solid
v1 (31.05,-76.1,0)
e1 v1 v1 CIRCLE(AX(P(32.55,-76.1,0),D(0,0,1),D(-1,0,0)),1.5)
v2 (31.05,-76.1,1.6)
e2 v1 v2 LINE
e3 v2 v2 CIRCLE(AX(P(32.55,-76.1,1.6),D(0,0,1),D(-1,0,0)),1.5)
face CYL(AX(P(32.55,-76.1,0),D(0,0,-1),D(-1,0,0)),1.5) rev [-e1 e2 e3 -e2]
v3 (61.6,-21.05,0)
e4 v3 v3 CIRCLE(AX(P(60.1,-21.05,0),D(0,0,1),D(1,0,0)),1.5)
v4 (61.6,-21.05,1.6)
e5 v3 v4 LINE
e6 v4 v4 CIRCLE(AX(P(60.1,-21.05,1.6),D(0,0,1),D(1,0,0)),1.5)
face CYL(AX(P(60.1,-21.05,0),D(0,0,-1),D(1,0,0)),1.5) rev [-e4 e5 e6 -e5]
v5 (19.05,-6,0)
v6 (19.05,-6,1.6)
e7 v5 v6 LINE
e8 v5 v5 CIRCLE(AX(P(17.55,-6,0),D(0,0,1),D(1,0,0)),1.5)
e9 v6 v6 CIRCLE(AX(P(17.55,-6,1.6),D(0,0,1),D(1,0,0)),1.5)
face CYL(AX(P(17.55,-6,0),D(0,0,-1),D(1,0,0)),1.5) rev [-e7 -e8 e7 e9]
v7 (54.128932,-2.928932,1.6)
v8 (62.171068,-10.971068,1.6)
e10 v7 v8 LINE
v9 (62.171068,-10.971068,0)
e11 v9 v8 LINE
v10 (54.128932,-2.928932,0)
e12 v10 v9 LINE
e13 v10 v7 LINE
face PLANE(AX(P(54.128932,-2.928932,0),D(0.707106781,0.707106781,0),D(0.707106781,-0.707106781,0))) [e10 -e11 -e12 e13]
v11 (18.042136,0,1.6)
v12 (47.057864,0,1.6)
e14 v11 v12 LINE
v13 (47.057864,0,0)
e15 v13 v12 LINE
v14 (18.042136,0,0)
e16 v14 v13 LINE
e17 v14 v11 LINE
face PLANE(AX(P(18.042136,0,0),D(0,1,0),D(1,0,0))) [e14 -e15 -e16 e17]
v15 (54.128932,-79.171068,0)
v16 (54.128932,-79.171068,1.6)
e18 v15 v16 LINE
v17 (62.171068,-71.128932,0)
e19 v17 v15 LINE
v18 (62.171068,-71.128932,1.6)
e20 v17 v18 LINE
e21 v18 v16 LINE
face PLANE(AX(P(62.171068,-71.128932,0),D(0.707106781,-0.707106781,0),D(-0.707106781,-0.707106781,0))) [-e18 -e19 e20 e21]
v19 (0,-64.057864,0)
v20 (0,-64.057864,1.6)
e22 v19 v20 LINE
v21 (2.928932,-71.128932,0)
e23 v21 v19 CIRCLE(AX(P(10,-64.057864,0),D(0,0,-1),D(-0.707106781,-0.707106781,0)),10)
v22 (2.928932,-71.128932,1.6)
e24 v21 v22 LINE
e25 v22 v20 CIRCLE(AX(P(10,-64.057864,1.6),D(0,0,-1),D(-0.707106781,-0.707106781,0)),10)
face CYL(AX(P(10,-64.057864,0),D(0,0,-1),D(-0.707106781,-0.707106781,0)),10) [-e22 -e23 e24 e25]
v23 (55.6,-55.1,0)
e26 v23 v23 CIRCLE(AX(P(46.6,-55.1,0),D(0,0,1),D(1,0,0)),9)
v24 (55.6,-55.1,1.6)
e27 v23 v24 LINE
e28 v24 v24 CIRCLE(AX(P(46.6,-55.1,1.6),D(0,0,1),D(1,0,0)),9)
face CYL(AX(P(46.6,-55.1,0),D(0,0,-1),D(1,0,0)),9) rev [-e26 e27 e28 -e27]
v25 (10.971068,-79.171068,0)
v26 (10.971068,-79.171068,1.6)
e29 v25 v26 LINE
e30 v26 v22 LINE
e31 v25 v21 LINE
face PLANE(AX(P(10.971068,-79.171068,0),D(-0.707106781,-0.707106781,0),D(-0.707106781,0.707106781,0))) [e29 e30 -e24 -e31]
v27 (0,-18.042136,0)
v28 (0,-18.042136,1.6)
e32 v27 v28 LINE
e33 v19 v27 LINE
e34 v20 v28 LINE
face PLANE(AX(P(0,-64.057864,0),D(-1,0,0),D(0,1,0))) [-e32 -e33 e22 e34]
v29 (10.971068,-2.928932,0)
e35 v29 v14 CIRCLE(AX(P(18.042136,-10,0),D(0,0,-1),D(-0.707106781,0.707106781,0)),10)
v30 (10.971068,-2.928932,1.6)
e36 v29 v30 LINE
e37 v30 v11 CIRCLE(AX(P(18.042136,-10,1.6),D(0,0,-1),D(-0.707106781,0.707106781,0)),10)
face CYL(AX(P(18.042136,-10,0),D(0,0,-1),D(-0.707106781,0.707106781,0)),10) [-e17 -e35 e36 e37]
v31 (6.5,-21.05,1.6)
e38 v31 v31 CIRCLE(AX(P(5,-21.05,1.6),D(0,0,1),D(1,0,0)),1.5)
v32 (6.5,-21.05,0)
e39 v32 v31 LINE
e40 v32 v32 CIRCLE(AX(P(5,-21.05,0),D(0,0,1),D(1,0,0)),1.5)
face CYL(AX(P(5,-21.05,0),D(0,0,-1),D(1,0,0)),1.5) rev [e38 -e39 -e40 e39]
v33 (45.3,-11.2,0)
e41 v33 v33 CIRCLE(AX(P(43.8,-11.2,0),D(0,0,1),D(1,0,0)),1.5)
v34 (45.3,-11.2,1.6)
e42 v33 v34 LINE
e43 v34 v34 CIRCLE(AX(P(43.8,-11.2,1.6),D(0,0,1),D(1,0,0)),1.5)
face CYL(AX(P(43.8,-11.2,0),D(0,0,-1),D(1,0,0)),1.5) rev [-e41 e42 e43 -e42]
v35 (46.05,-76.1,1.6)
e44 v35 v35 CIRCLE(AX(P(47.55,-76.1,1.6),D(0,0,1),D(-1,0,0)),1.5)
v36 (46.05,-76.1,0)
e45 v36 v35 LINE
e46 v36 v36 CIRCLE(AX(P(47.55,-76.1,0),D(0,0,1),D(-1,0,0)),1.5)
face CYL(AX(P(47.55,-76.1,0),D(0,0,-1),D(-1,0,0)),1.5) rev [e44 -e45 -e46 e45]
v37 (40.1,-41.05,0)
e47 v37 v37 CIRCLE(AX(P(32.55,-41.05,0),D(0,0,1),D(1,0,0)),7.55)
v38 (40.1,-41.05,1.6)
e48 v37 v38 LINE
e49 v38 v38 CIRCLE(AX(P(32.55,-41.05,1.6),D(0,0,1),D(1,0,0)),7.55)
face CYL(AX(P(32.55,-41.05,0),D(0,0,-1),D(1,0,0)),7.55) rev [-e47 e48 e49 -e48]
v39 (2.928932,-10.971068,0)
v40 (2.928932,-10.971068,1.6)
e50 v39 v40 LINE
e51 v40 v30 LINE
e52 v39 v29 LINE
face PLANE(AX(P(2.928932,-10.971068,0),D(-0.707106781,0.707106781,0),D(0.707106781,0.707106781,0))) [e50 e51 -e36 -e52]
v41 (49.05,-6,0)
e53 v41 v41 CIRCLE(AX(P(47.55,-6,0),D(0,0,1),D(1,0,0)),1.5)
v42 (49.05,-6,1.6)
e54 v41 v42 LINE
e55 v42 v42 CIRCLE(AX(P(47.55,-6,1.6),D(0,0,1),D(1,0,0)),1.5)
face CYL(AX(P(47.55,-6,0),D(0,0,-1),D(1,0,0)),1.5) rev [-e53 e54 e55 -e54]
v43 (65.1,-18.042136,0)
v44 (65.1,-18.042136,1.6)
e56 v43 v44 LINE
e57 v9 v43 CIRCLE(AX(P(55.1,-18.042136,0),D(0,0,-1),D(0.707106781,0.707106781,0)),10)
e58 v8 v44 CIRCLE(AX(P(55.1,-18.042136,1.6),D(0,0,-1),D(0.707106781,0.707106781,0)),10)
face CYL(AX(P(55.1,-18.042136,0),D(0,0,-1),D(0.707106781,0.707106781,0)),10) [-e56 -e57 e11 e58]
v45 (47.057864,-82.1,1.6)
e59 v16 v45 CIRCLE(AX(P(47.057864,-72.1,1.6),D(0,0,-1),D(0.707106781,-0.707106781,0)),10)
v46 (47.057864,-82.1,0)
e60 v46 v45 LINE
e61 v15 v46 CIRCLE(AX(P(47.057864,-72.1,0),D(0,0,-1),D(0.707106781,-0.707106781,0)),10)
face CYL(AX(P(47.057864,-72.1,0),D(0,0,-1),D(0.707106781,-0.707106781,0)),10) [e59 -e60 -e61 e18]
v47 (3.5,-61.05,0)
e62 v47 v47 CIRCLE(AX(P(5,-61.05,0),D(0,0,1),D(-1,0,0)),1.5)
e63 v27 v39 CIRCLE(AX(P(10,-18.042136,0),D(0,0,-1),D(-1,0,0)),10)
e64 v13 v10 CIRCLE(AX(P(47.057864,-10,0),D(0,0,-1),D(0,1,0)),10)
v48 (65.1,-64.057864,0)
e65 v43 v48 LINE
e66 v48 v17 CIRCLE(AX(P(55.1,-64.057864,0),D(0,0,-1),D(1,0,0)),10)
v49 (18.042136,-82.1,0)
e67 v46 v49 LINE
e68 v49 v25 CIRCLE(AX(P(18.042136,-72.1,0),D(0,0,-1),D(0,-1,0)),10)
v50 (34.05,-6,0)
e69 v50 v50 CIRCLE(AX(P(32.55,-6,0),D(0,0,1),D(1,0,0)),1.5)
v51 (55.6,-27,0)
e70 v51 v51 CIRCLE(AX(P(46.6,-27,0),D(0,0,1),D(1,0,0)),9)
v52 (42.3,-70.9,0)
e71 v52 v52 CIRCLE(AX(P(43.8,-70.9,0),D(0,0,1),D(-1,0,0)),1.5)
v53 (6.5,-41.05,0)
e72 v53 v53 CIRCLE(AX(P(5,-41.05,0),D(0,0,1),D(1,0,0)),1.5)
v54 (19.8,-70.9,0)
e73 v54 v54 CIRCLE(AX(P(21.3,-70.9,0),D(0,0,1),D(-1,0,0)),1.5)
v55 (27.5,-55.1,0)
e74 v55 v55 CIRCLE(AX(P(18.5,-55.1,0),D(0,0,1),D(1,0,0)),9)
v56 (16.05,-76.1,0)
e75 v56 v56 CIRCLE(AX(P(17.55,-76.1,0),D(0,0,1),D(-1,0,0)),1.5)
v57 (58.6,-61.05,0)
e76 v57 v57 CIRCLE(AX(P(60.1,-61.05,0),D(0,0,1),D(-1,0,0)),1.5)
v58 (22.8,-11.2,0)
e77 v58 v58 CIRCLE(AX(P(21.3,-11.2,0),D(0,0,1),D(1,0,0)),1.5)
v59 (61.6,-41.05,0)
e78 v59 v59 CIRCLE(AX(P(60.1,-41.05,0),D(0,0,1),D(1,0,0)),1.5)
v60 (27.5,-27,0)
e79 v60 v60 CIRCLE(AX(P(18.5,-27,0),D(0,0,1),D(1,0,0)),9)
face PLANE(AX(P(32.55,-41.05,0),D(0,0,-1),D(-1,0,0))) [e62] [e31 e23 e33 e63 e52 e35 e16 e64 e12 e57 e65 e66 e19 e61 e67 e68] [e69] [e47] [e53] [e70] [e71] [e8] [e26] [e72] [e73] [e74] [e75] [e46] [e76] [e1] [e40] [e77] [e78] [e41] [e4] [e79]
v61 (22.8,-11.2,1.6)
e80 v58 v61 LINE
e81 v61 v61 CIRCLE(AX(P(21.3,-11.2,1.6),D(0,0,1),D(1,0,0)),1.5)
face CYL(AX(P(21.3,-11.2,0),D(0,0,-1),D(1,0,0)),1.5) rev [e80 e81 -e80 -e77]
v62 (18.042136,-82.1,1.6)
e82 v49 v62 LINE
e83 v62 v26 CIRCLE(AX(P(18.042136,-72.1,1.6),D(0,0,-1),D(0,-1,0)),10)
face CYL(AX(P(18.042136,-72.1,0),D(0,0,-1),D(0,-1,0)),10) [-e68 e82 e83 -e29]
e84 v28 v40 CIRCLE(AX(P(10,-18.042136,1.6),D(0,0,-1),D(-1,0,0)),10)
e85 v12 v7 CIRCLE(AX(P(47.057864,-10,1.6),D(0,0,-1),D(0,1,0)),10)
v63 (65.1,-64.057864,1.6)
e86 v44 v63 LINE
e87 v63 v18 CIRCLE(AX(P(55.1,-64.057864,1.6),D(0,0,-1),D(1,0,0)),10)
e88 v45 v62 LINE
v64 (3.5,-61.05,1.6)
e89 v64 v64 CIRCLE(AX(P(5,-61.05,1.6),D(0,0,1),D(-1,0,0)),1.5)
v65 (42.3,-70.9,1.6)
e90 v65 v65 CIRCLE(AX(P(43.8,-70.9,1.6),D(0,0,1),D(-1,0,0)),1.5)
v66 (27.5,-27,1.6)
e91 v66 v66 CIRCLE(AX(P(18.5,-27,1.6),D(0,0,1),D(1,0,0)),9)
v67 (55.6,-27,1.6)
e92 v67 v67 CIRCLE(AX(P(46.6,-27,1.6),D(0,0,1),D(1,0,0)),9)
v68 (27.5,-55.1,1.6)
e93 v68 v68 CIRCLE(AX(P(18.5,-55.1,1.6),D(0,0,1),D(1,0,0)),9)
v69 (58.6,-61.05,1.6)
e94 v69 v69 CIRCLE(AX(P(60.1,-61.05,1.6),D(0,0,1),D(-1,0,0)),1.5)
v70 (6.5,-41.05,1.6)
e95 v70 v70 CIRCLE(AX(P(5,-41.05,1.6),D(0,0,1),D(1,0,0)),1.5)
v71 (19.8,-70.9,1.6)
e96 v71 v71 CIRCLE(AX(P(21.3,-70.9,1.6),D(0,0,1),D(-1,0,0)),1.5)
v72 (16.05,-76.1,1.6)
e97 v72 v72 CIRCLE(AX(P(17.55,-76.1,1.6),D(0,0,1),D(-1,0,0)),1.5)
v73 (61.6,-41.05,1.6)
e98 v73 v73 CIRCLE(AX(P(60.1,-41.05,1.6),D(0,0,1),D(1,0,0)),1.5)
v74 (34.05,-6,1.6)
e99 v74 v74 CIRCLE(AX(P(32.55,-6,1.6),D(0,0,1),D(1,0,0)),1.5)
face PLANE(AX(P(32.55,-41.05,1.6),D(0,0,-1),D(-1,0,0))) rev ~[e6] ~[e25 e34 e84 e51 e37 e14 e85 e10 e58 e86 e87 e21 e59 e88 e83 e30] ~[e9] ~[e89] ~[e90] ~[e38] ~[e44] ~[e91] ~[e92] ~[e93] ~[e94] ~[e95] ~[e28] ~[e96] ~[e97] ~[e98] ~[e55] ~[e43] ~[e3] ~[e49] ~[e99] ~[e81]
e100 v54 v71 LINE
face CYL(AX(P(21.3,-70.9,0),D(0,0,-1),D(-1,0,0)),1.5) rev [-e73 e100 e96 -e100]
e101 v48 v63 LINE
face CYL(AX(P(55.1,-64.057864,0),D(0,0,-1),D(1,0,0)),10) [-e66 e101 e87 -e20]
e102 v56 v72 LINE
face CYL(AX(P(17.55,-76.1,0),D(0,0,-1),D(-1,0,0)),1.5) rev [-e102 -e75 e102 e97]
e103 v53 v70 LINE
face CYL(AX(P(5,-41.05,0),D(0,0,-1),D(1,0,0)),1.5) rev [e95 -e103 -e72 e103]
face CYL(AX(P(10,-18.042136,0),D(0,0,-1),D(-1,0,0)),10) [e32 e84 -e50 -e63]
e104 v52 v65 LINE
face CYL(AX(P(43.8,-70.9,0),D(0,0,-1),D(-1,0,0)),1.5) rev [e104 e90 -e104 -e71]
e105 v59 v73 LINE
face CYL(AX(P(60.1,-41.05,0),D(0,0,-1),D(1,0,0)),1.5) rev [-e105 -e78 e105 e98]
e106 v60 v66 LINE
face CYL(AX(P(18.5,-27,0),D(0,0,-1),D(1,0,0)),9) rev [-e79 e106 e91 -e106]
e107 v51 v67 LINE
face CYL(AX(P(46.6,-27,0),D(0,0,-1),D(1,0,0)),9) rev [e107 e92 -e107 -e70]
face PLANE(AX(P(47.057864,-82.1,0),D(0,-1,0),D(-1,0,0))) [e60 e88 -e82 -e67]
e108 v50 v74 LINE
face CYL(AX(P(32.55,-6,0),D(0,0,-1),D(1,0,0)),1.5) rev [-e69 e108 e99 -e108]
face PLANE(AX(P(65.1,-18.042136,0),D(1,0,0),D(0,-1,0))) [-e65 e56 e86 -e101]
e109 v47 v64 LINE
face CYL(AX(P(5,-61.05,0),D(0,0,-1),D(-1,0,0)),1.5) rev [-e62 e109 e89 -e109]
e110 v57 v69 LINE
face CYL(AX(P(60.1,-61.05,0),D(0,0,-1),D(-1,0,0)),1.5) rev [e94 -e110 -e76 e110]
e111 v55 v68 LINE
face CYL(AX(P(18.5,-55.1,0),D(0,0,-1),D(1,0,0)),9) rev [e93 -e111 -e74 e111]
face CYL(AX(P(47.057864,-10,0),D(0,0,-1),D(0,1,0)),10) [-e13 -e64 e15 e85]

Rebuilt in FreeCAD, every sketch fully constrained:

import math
import FreeCAD as App
import Part
import Sketcher

V = App.Vector

doc = App.newDocument("Part")
body = doc.addObject("PartDesign::Body", "Body")

# Sketch on XY plane
sketch1 = body.newObject("Sketcher::SketchObject", "Sketch")
sketch1.AttachmentSupport = (doc.getObject("XY_Plane"), [""])
sketch1.MapMode = "FlatFace"
sketch1.addGeometry([
    Part.LineSegment(V(11, -2.9, 0), V(2.9, -11, 0)),  # 0
    Part.ArcOfCircle(Part.Circle(V(10, -18, 0), V(0, 0, 1), 10), math.radians(135), math.radians(180)),  # 1
    Part.LineSegment(V(0, -18, 0), V(0, -64.1, 0)),  # 2
    Part.ArcOfCircle(Part.Circle(V(10, -64.1, 0), V(0, 0, 1), 10), math.radians(180), math.radians(225)),  # 3
    Part.LineSegment(V(2.9, -71.1, 0), V(11, -79.2, 0)),  # 4
    Part.ArcOfCircle(Part.Circle(V(18, -72.1, 0), V(0, 0, 1), 10), math.radians(-135), math.radians(-90)),  # 5
    Part.LineSegment(V(18, -82.1, 0), V(47.1, -82.1, 0)),  # 6
    Part.ArcOfCircle(Part.Circle(V(47.1, -72.1, 0), V(0, 0, 1), 10), math.radians(-90), math.radians(-45)),  # 7
    Part.LineSegment(V(54.1, -79.2, 0), V(62.2, -71.1, 0)),  # 8
    Part.ArcOfCircle(Part.Circle(V(55.1, -64.1, 0), V(0, 0, 1), 10), math.radians(-45), math.radians(0)),  # 9
    Part.LineSegment(V(65.1, -64.1, 0), V(65.1, -18, 0)),  # 10
    Part.ArcOfCircle(Part.Circle(V(55.1, -18, 0), V(0, 0, 1), 10), math.radians(0), math.radians(45)),  # 11
    Part.LineSegment(V(62.2, -11, 0), V(54.1, -2.9, 0)),  # 12
    Part.ArcOfCircle(Part.Circle(V(47.1, -10, 0), V(0, 0, 1), 10), math.radians(45), math.radians(90)),  # 13
    Part.LineSegment(V(47.1, 0, 0), V(18, 0, 0)),  # 14
    Part.ArcOfCircle(Part.Circle(V(18, -10, 0), V(0, 0, 1), 10), math.radians(90), math.radians(135)),  # 15
    Part.Circle(V(47.5, -76.1, 0), V(0, 0, 1), 1.5),  # 16
    Part.Circle(V(60.1, -61, 0), V(0, 0, 1), 1.5),  # 17
    Part.Circle(V(43.8, -70.9, 0), V(0, 0, 1), 1.5),  # 18
    Part.Circle(V(46.6, -55.1, 0), V(0, 0, 1), 9),  # 19
    Part.Circle(V(32.5, -76.1, 0), V(0, 0, 1), 1.5),  # 20
    Part.Circle(V(21.3, -70.9, 0), V(0, 0, 1), 1.5),  # 21
    Part.Circle(V(17.6, -76.1, 0), V(0, 0, 1), 1.5),  # 22
    Part.Circle(V(5, -61, 0), V(0, 0, 1), 1.5),  # 23
    Part.Circle(V(18.5, -55.1, 0), V(0, 0, 1), 9),  # 24
    Part.Circle(V(60.1, -41, 0), V(0, 0, 1), 1.5),  # 25
    Part.Circle(V(46.6, -27, 0), V(0, 0, 1), 9),  # 26
    Part.Circle(V(60.1, -21.1, 0), V(0, 0, 1), 1.5),  # 27
    Part.Circle(V(47.5, -6, 0), V(0, 0, 1), 1.5),  # 28
    Part.Circle(V(43.8, -11.2, 0), V(0, 0, 1), 1.5),  # 29
    Part.Circle(V(32.5, -41, 0), V(0, 0, 1), 7.5),  # 30
    Part.Circle(V(18.5, -27, 0), V(0, 0, 1), 9),  # 31
    Part.Circle(V(5, -41, 0), V(0, 0, 1), 1.5),  # 32
    Part.Circle(V(32.5, -6, 0), V(0, 0, 1), 1.5),  # 33
    Part.Circle(V(21.3, -11.2, 0), V(0, 0, 1), 1.5),  # 34
    Part.Circle(V(5, -21.1, 0), V(0, 0, 1), 1.5),  # 35
    Part.Circle(V(17.6, -6, 0), V(0, 0, 1), 1.5),  # 36
], False)
sketch1.addConstraint([
    Sketcher.Constraint("Tangent", 0, 2, 1, 1),
    Sketcher.Constraint("Tangent", 1, 2, 2, 1),
    Sketcher.Constraint("Tangent", 2, 2, 3, 1),
    Sketcher.Constraint("Tangent", 3, 2, 4, 1),
    Sketcher.Constraint("Tangent", 4, 2, 5, 1),
    Sketcher.Constraint("Tangent", 5, 2, 6, 1),
    Sketcher.Constraint("Tangent", 6, 2, 7, 1),
    Sketcher.Constraint("Tangent", 7, 2, 8, 1),
    Sketcher.Constraint("Tangent", 8, 2, 9, 1),
    Sketcher.Constraint("Tangent", 9, 2, 10, 1),
    Sketcher.Constraint("Tangent", 10, 2, 11, 1),
    Sketcher.Constraint("Tangent", 11, 2, 12, 1),
    Sketcher.Constraint("Tangent", 12, 2, 13, 1),
    Sketcher.Constraint("Tangent", 13, 2, 14, 1),
    Sketcher.Constraint("Tangent", 14, 2, 15, 1),
    Sketcher.Constraint("Tangent", 15, 2, 0, 1),
    Sketcher.Constraint("Vertical", 2),
    Sketcher.Constraint("Horizontal", 6),
    Sketcher.Constraint("Vertical", 10),
    Sketcher.Constraint("Horizontal", 14),
    Sketcher.Constraint("Equal", 1, 3),
    Sketcher.Constraint("Equal", 3, 5),
    Sketcher.Constraint("Equal", 5, 7),
    Sketcher.Constraint("Equal", 7, 9),
    Sketcher.Constraint("Equal", 9, 11),
    Sketcher.Constraint("Equal", 11, 13),
    Sketcher.Constraint("Equal", 13, 15),
    Sketcher.Constraint("Equal", 16, 17),
    Sketcher.Constraint("Equal", 17, 18),
    Sketcher.Constraint("Equal", 18, 20),
    Sketcher.Constraint("Equal", 20, 21),
    Sketcher.Constraint("Equal", 21, 22),
    Sketcher.Constraint("Equal", 22, 23),
    Sketcher.Constraint("Equal", 19, 24),
    Sketcher.Constraint("Equal", 23, 25),
    Sketcher.Constraint("Equal", 24, 26),
    Sketcher.Constraint("Equal", 25, 27),
    Sketcher.Constraint("Equal", 27, 28),
    Sketcher.Constraint("Equal", 28, 29),
    Sketcher.Constraint("Equal", 26, 31),
    Sketcher.Constraint("Equal", 29, 32),
    Sketcher.Constraint("Equal", 32, 33),
    Sketcher.Constraint("Equal", 33, 34),
    Sketcher.Constraint("Equal", 34, 35),
    Sketcher.Constraint("Equal", 35, 36),
    Sketcher.Constraint("PointOnObject", 1, 2, -2),
    Sketcher.Constraint("PointOnObject", 13, 2, -1),
    Sketcher.Constraint("Perpendicular", 0, 4),
    Sketcher.Constraint("Perpendicular", 4, 8),
    Sketcher.Constraint("Perpendicular", 8, 12),
    Sketcher.Constraint("Horizontal", 3, 3, 9, 3),
    Sketcher.Constraint("Horizontal", 1, 3, 11, 3),
    Sketcher.Constraint("Horizontal", 16, 3, 20, 3),
    Sketcher.Constraint("Horizontal", 18, 3, 21, 3),
    Sketcher.Constraint("Horizontal", 20, 3, 22, 3),
    Sketcher.Constraint("Horizontal", 17, 3, 23, 3),
    Sketcher.Constraint("Horizontal", 19, 3, 24, 3),
    Sketcher.Constraint("Horizontal", 25, 3, 30, 3),
    Sketcher.Constraint("Horizontal", 26, 3, 31, 3),
    Sketcher.Constraint("Horizontal", 30, 3, 32, 3),
    Sketcher.Constraint("Horizontal", 28, 3, 33, 3),
    Sketcher.Constraint("Horizontal", 29, 3, 34, 3),
    Sketcher.Constraint("Horizontal", 27, 3, 35, 3),
    Sketcher.Constraint("Horizontal", 33, 3, 36, 3),
    Sketcher.Constraint("Horizontal", 4, 2, 7, 2),
    Sketcher.Constraint("Vertical", 7, 3, 13, 3),
    Sketcher.Constraint("Vertical", 17, 3, 25, 3),
    Sketcher.Constraint("Vertical", 19, 3, 26, 3),
    Sketcher.Constraint("Vertical", 25, 3, 27, 3),
    Sketcher.Constraint("Vertical", 16, 3, 28, 3),
    Sketcher.Constraint("Vertical", 18, 3, 29, 3),
    Sketcher.Constraint("Vertical", 20, 3, 30, 3),
    Sketcher.Constraint("Vertical", 24, 3, 31, 3),
    Sketcher.Constraint("Vertical", 23, 3, 32, 3),
    Sketcher.Constraint("Vertical", 30, 3, 33, 3),
    Sketcher.Constraint("Vertical", 21, 3, 34, 3),
    Sketcher.Constraint("Vertical", 32, 3, 35, 3),
    Sketcher.Constraint("Vertical", 22, 3, 36, 3),
    Sketcher.Constraint("Diameter", 16, 3.0),
    Sketcher.Constraint("Diameter", 19, 18.0),
    Sketcher.Constraint("Radius", 1, 10.0),
    Sketcher.Constraint("Diameter", 30, 15.1),
    Sketcher.Constraint("DistanceX", -1, 1, 23, 3, 5.0),
    Sketcher.Constraint("DistanceY", 26, 3, -1, 1, 27.0),
    Sketcher.Constraint("DistanceY", 28, 3, -1, 1, 6.0),
    Sketcher.Constraint("DistanceY", 16, 3, 7, 3, 4.0),
    Sketcher.Constraint("DistanceX", 9, 3, 17, 3, 5.0),
    Sketcher.Constraint("DistanceY", 7, 3, 19, 3, 17.0),
    Sketcher.Constraint("DistanceX", 20, 3, 16, 3, 15.0),
    Sketcher.Constraint("DistanceX", 22, 3, 20, 3, 15.0),
    Sketcher.Constraint("DistanceY", 17, 3, 25, 3, 20.0),
    Sketcher.Constraint("DistanceY", 25, 3, 27, 3, 20.0),
    Sketcher.Constraint("DistanceY", 5, 3, -1, 1, 72.1),
    Sketcher.Constraint("DistanceX", -1, 1, 9, 3, 55.1),
    Sketcher.Constraint("DistanceX", -1, 1, 18, 3, 43.8),
    Sketcher.Constraint("DistanceY", 18, 3, -1, 1, 70.9),
    Sketcher.Constraint("DistanceX", -1, 1, 19, 3, 46.6),
    Sketcher.Constraint("DistanceX", -1, 1, 21, 3, 21.3),
    Sketcher.Constraint("DistanceX", -1, 1, 24, 3, 18.5),
    Sketcher.Constraint("DistanceY", 29, 3, -1, 1, 11.2),
    Sketcher.Constraint("DistanceX", -1, 1, 16, 3, 47.55),
    Sketcher.Constraint("DistanceY", 17, 3, -1, 1, 61.05),
    Sketcher.Constraint("DistanceX", 6, 1, 6, 2, 29.015729),
])
pad1 = body.newObject("PartDesign::Pad", "Pad")
pad1.Profile = sketch1
pad1.Length = 1.6

doc.recompute()
